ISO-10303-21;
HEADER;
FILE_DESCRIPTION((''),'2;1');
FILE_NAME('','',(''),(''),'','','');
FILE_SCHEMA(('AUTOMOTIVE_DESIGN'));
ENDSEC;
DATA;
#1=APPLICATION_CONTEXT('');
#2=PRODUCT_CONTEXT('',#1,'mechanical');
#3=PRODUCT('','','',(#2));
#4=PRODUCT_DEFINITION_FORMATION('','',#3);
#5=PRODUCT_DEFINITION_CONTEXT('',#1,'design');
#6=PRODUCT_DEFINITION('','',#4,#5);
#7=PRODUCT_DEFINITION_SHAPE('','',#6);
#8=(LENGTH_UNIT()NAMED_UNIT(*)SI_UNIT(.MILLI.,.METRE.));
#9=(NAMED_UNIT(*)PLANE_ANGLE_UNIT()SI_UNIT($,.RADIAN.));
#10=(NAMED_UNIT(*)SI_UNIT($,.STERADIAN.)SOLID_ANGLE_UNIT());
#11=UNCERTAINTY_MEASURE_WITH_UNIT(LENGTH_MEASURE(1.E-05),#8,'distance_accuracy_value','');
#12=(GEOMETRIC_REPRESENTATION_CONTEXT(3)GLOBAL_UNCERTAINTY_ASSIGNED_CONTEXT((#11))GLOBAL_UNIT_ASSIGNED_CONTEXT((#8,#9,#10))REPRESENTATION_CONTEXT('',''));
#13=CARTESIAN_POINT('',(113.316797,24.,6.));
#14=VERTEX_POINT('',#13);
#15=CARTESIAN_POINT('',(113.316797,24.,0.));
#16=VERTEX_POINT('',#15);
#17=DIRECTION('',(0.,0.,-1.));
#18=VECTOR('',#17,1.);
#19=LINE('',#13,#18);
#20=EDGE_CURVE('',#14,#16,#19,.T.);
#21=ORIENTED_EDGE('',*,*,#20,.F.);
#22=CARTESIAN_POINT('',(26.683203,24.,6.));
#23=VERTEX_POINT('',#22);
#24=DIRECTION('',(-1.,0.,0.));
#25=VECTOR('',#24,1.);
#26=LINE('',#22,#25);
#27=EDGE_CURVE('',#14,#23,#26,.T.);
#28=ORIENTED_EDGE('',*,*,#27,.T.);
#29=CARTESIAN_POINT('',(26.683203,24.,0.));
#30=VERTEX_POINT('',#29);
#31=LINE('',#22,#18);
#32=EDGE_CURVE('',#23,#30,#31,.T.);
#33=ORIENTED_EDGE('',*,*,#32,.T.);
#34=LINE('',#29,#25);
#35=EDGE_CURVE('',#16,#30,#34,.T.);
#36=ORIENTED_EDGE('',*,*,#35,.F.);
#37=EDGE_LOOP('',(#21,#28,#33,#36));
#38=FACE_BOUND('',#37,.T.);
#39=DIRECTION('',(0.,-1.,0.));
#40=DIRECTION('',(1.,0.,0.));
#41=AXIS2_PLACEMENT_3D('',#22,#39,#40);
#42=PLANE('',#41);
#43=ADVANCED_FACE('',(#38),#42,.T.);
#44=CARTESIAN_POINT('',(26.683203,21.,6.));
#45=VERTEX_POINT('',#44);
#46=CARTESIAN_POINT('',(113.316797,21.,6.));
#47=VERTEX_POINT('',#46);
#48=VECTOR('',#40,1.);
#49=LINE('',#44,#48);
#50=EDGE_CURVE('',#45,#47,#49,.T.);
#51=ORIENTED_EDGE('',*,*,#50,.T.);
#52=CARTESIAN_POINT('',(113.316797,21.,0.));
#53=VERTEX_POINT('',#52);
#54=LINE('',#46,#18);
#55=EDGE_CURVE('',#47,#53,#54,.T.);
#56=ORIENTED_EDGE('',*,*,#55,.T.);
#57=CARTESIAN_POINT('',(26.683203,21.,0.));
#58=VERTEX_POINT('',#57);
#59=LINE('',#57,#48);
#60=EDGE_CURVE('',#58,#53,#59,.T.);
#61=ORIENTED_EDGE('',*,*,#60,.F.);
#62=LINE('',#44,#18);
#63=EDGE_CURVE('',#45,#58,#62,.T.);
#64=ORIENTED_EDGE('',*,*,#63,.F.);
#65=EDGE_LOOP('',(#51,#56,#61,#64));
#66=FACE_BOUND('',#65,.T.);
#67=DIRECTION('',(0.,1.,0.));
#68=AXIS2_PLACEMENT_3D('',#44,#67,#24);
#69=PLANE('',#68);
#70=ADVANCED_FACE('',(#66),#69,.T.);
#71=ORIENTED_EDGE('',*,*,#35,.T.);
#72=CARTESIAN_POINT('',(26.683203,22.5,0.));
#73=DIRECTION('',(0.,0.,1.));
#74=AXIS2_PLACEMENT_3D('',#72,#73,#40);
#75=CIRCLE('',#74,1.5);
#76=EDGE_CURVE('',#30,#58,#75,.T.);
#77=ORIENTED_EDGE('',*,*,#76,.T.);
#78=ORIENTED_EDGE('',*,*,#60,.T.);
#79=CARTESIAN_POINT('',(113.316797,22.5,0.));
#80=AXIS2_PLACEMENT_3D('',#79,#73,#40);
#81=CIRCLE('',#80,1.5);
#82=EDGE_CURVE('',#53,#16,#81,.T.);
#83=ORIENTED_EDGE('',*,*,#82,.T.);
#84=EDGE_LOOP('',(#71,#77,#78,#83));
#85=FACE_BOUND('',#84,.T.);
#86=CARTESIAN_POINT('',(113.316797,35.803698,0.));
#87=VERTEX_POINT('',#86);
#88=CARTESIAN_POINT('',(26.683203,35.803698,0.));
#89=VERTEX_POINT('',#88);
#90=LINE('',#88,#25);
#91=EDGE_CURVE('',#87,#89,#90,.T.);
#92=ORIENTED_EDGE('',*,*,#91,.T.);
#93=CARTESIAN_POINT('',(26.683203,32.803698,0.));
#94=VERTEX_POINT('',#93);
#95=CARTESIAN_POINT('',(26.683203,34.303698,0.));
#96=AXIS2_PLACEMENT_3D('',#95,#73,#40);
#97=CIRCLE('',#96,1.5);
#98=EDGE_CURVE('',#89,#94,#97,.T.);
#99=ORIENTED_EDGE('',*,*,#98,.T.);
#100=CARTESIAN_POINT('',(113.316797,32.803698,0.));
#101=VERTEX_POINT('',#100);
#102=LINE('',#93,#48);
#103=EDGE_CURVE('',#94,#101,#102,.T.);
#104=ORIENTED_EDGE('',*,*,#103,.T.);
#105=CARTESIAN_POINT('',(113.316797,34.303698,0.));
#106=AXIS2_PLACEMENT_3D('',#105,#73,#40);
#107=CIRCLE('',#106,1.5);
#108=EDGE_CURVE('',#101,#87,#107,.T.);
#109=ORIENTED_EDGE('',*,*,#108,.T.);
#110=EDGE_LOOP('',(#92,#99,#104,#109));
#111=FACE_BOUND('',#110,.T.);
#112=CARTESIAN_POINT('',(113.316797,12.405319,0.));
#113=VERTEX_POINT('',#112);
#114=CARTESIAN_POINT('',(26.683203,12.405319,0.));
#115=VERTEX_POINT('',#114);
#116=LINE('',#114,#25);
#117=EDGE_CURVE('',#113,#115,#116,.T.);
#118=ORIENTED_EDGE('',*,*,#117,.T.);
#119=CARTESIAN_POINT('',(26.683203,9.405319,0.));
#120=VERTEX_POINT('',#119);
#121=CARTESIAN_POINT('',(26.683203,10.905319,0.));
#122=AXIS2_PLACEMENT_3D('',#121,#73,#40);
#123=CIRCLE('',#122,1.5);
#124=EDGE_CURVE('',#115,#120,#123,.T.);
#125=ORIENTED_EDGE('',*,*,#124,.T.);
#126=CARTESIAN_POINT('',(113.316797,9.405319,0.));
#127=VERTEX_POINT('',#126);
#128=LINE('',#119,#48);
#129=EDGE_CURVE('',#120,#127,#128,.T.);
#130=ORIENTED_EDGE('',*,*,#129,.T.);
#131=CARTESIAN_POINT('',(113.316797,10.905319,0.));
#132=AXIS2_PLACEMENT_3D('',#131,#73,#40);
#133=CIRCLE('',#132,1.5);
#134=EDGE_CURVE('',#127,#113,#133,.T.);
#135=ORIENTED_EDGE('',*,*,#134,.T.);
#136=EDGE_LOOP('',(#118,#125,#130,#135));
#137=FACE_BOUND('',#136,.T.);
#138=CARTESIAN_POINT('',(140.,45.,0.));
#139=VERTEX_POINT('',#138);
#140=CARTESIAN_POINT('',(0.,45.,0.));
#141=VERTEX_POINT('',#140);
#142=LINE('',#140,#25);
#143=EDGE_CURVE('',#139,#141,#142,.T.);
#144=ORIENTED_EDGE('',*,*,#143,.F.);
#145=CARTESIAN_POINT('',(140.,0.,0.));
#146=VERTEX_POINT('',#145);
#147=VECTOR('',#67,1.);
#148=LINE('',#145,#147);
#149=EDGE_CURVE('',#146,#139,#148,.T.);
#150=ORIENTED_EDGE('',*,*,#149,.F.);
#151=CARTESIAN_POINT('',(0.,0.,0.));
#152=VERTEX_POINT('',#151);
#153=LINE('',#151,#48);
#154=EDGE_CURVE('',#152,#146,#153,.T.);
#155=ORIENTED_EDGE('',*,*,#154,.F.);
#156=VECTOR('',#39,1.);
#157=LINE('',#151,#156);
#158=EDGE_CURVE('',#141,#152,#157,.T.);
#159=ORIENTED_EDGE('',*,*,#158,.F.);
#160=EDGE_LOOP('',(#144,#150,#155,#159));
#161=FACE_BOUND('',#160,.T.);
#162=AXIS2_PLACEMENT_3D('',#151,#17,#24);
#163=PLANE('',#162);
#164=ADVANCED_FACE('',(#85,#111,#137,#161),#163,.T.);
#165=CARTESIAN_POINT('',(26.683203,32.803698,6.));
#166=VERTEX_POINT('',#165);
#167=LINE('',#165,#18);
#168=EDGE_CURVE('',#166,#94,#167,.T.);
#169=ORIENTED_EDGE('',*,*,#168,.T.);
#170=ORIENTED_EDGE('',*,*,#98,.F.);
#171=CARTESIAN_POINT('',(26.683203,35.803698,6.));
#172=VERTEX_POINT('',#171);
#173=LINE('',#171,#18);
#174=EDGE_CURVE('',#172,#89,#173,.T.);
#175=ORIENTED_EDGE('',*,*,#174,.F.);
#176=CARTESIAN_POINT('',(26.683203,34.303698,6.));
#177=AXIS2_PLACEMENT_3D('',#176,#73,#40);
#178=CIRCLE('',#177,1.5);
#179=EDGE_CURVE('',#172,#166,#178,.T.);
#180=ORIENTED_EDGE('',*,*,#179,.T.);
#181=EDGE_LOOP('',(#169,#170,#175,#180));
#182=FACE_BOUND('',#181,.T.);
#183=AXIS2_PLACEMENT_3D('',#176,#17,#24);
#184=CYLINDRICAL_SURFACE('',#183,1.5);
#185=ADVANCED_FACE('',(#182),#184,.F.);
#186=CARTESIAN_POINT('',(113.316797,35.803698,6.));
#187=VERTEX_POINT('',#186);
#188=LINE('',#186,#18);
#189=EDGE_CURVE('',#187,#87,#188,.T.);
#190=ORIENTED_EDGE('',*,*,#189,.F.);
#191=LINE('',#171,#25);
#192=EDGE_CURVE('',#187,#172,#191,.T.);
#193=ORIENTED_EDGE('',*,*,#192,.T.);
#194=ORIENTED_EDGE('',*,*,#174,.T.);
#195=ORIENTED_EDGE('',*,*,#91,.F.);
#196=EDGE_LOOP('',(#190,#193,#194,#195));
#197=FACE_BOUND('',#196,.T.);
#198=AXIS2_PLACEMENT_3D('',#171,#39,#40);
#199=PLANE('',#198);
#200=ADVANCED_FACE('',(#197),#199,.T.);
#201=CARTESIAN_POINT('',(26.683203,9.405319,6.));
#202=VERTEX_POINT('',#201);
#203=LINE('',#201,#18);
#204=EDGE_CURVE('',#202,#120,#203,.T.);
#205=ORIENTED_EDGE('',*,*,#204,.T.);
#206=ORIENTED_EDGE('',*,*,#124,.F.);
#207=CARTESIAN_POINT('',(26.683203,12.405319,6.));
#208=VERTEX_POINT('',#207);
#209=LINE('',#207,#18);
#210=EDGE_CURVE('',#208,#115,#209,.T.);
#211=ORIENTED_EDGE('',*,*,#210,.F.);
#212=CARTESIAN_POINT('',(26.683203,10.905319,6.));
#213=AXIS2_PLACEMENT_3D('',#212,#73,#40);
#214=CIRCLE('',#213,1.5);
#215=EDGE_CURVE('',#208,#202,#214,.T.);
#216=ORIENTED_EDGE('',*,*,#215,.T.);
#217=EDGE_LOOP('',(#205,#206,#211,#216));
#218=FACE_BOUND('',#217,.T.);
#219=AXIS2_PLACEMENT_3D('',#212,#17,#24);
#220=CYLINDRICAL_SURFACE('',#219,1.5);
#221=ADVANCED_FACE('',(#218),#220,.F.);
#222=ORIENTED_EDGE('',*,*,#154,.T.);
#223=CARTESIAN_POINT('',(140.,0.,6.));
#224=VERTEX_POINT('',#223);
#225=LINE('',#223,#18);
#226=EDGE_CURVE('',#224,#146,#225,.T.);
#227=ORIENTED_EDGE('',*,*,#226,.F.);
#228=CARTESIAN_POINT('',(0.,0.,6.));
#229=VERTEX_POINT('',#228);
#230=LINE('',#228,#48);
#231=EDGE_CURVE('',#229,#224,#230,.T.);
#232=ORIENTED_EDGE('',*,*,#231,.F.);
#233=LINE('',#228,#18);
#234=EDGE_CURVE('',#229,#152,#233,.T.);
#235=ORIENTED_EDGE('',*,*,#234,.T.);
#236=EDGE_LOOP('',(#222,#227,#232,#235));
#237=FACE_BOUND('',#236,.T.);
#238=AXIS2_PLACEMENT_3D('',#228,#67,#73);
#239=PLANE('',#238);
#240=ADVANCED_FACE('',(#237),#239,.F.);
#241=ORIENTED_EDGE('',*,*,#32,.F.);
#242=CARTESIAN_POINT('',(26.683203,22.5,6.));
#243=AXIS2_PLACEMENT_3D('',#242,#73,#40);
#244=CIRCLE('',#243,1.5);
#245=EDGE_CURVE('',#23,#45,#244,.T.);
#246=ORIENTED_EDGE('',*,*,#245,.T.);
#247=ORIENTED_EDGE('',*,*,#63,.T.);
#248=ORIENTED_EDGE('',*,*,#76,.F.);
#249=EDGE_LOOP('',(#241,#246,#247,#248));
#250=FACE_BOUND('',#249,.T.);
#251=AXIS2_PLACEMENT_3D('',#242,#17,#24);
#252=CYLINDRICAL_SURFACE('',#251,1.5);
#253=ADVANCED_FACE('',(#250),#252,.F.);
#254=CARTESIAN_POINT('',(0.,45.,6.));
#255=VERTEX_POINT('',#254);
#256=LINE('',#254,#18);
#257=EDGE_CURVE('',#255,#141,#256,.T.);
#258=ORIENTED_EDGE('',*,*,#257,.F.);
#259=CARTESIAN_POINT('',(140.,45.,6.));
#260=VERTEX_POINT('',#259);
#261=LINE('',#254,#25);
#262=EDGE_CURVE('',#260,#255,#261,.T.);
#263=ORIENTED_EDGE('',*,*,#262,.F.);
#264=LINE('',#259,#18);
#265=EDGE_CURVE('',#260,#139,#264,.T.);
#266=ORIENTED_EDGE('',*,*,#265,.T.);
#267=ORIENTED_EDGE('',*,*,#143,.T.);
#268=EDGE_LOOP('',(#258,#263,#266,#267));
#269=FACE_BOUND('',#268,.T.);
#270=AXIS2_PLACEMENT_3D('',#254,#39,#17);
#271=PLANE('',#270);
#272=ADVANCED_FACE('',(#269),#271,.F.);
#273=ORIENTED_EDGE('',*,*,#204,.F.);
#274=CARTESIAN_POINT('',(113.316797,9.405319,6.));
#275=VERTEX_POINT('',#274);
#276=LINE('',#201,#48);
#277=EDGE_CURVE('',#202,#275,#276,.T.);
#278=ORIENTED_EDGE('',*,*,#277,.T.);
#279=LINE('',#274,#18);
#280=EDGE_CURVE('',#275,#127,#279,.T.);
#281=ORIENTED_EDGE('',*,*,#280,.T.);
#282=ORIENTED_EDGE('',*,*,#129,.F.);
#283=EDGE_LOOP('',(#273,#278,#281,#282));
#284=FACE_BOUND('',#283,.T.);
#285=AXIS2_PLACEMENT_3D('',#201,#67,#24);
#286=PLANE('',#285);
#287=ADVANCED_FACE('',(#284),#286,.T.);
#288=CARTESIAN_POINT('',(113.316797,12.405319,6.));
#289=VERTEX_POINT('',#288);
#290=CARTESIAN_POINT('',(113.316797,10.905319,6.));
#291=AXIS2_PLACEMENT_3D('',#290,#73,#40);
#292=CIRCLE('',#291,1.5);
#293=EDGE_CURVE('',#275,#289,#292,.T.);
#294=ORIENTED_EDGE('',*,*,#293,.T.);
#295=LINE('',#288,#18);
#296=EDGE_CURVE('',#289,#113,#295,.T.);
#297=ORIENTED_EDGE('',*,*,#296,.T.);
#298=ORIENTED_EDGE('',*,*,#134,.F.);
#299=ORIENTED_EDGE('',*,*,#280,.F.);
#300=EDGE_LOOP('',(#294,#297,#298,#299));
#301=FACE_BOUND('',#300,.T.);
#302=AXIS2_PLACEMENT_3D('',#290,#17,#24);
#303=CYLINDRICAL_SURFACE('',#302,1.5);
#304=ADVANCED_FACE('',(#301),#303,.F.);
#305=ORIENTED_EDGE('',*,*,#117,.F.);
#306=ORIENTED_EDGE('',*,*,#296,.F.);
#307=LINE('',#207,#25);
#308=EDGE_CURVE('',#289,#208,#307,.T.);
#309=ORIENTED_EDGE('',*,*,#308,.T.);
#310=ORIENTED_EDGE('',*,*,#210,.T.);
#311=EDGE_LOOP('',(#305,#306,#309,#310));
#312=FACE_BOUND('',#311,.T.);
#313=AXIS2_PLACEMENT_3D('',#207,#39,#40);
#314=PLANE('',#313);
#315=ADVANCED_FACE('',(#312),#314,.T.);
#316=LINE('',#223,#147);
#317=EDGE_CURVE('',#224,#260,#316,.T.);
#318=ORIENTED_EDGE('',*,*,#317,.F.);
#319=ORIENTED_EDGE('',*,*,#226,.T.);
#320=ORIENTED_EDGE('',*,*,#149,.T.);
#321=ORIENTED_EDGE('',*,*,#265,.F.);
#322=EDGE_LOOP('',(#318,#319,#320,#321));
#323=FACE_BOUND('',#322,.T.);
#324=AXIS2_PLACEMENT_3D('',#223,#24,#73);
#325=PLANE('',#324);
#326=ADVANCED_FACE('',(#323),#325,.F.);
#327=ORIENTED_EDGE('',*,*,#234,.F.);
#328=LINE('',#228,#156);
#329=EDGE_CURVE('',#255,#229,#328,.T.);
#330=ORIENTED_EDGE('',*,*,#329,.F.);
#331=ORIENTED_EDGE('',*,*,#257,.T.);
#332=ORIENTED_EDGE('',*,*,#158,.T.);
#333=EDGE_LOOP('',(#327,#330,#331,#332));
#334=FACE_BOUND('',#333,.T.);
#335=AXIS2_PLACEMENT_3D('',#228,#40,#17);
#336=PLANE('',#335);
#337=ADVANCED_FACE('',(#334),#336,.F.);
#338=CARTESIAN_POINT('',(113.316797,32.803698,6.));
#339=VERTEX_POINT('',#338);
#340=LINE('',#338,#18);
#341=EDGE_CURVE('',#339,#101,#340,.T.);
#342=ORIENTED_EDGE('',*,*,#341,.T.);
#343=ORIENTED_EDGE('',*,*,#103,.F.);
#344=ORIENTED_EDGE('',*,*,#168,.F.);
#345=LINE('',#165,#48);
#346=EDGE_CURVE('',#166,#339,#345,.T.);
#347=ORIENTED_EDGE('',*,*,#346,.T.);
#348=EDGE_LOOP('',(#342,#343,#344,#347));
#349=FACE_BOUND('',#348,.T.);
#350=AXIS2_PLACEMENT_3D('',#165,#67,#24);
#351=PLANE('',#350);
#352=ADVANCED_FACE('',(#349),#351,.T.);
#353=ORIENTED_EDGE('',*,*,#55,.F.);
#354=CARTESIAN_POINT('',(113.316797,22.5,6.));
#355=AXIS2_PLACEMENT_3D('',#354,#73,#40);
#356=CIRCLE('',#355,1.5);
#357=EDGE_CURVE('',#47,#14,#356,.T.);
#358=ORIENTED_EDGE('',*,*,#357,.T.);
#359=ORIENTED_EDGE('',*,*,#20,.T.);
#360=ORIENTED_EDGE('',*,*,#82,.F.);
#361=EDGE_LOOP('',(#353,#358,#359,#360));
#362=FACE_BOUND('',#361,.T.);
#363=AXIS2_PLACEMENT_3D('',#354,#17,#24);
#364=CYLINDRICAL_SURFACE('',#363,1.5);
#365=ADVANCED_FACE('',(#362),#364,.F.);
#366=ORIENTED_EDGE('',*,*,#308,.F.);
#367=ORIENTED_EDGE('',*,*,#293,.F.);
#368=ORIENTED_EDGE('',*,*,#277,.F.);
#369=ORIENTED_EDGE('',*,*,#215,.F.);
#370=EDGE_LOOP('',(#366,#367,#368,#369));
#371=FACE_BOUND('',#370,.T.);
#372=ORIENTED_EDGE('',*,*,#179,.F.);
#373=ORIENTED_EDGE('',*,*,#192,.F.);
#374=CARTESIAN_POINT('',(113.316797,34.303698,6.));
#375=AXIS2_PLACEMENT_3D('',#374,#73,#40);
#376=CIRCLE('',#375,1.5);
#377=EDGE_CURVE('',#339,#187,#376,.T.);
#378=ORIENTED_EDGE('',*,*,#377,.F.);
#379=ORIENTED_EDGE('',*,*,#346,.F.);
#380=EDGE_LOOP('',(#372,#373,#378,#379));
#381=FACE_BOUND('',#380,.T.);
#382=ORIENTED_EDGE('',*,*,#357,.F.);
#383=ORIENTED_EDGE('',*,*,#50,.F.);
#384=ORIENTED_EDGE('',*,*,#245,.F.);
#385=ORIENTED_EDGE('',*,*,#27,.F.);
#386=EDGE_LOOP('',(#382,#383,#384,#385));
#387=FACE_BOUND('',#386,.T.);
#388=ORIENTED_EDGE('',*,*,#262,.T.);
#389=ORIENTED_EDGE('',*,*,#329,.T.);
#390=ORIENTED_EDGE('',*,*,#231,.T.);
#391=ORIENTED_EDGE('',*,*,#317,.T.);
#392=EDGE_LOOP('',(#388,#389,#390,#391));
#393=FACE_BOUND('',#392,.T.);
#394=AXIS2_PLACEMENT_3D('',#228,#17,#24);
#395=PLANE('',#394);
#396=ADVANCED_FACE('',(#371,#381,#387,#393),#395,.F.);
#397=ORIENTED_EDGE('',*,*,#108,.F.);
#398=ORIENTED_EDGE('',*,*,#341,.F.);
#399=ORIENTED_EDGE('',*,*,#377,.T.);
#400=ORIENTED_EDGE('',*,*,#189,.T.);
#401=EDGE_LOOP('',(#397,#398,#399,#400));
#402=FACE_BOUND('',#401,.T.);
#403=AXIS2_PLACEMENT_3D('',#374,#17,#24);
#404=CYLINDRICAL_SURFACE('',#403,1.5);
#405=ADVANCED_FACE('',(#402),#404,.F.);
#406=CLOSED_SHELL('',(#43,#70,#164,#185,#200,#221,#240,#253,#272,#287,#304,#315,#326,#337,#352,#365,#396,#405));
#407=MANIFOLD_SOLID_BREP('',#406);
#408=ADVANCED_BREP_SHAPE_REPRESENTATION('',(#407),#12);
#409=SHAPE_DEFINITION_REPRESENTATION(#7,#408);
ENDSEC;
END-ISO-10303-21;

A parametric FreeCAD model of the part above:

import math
import FreeCAD as App
import Part
import Sketcher

V = App.Vector


def add_polygon(sketch, points):
    """Adds a closed chain of lines whose ends are joined by coincident constraints."""
    first, n = sketch.GeometryCount, len(points)
    for a, b in zip(points, points[1:] + points[:1]):
        sketch.addGeometry(Part.LineSegment(App.Vector(*a, 0), App.Vector(*b, 0)), False)
    for i in range(n):
        sketch.addConstraint(Sketcher.Constraint("Coincident", first + i, 2, first + (i + 1) % n, 1))

doc = App.newDocument("Part")
params = doc.addObject("Spreadsheet::Sheet", "Params")
for row, (alias, value) in enumerate([
    ("sketch1_radius", "1.5 mm"),
    ("sketch1_width", "140 mm"),
    ("sketch1_height", "45 mm"),
    ("pad1_length", "6 mm"),
], start=1):
    params.set(f"A{row}", alias)
    params.set(f"B{row}", "=" + value)
    params.setAlias(f"B{row}", alias)

body = doc.addObject("PartDesign::Body", "Body")

# Sketch on XY plane
sketch1 = body.newObject("Sketcher::SketchObject", "Sketch")
sketch1.AttachmentSupport = (doc.getObject("XY_Plane"), [""])
sketch1.MapMode = "FlatFace"
add_polygon(sketch1, [(0, 45), (0, 0), (140, 0), (140, 45)])  # lines 0-3
sketch1.addGeometry(Part.ArcOfCircle(Part.Circle(V(26.7, 10.9, 0), V(0, 0, 1), 1.5), math.radians(90), math.radians(270)), False)  # 4
sketch1.addGeometry(Part.LineSegment(V(26.7, 12.4, 0), V(113.3, 12.4, 0)), False)  # 5
sketch1.addGeometry(Part.ArcOfCircle(Part.Circle(V(113.3, 10.9, 0), V(0, 0, 1), 1.5), math.radians(-90), math.radians(90)), False)  # 6
sketch1.addGeometry(Part.LineSegment(V(113.3, 9.4, 0), V(26.7, 9.4, 0)), False)  # 7
sketch1.addGeometry(Part.ArcOfCircle(Part.Circle(V(26.7, 22.5, 0), V(0, 0, 1), 1.5), math.radians(90), math.radians(270)), False)  # 8
sketch1.addGeometry(Part.LineSegment(V(26.7, 24, 0), V(113.3, 24, 0)), False)  # 9
sketch1.addGeometry(Part.ArcOfCircle(Part.Circle(V(113.3, 22.5, 0), V(0, 0, 1), 1.5), math.radians(-90), math.radians(90)), False)  # 10
sketch1.addGeometry(Part.LineSegment(V(113.3, 21, 0), V(26.7, 21, 0)), False)  # 11
sketch1.addGeometry(Part.ArcOfCircle(Part.Circle(V(26.7, 34.3, 0), V(0, 0, 1), 1.5), math.radians(90), math.radians(270)), False)  # 12
sketch1.addGeometry(Part.LineSegment(V(26.7, 35.8, 0), V(113.3, 35.8, 0)), False)  # 13
sketch1.addGeometry(Part.ArcOfCircle(Part.Circle(V(113.3, 34.3, 0), V(0, 0, 1), 1.5), math.radians(-90), math.radians(90)), False)  # 14
sketch1.addGeometry(Part.LineSegment(V(113.3, 32.8, 0), V(26.7, 32.8, 0)), False)  # 15
sketch1.addConstraint([
    Sketcher.Constraint("Tangent", 4, 1, 5, 1),
    Sketcher.Constraint("Tangent", 5, 2, 6, 2),
    Sketcher.Constraint("Tangent", 6, 1, 7, 1),
    Sketcher.Constraint("Tangent", 7, 2, 4, 2),
    Sketcher.Constraint("Tangent", 8, 1, 9, 1),
    Sketcher.Constraint("Tangent", 9, 2, 10, 2),
    Sketcher.Constraint("Tangent", 10, 1, 11, 1),
    Sketcher.Constraint("Tangent", 11, 2, 8, 2),
    Sketcher.Constraint("Tangent", 12, 1, 13, 1),
    Sketcher.Constraint("Tangent", 13, 2, 14, 2),
    Sketcher.Constraint("Tangent", 14, 1, 15, 1),
    Sketcher.Constraint("Tangent", 15, 2, 12, 2),
    Sketcher.Constraint("Vertical", 0),
    Sketcher.Constraint("Horizontal", 1),
    Sketcher.Constraint("Vertical", 2),
    Sketcher.Constraint("Horizontal", 3),
    Sketcher.Constraint("Horizontal", 5),
    Sketcher.Constraint("Horizontal", 7),
    Sketcher.Constraint("Horizontal", 9),
    Sketcher.Constraint("Horizontal", 11),
    Sketcher.Constraint("Horizontal", 13),
    Sketcher.Constraint("Horizontal", 15),
    Sketcher.Constraint("Coincident", 0, 2, -1, 1),
    Sketcher.Constraint("Equal", 6, 8),
    Sketcher.Constraint("Equal", 10, 12),
    Sketcher.Constraint("Vertical", 4, 3, 8, 3),
    Sketcher.Constraint("Vertical", 6, 3, 10, 3),
    Sketcher.Constraint("Vertical", 8, 3, 12, 3),
    Sketcher.Constraint("Vertical", 10, 3, 14, 3),
    Sketcher.Constraint("Radius", 4, 1.5),
    Sketcher.Constraint("DistanceX", 1, 1, 1, 2, 140.0),
    Sketcher.Constraint("DistanceY", 0, 2, 0, 1, 45.0),
    Sketcher.Constraint("DistanceY", -1, 1, 8, 1, 24.0),
    Sketcher.Constraint("DistanceY", -1, 1, 12, 3, 34.303698),
    Sketcher.Constraint("DistanceX", 5, 1, 5, 2, 86.633594),
    Sketcher.Constraint("DistanceY", -1, 1, 4, 3, 10.905319),
    Sketcher.Constraint("DistanceX", -1, 1, 4, 3, 26.683203),
])
sketch1.setExpression("Constraints[33]", "Params.sketch1_radius")
sketch1.setExpression("Constraints[34]", "Params.sketch1_width")
sketch1.setExpression("Constraints[35]", "Params.sketch1_height")
pad1 = body.newObject("PartDesign::Pad", "Pad")
pad1.Profile = sketch1
pad1.setExpression("Length", "Params.pad1_length")

doc.recompute()
